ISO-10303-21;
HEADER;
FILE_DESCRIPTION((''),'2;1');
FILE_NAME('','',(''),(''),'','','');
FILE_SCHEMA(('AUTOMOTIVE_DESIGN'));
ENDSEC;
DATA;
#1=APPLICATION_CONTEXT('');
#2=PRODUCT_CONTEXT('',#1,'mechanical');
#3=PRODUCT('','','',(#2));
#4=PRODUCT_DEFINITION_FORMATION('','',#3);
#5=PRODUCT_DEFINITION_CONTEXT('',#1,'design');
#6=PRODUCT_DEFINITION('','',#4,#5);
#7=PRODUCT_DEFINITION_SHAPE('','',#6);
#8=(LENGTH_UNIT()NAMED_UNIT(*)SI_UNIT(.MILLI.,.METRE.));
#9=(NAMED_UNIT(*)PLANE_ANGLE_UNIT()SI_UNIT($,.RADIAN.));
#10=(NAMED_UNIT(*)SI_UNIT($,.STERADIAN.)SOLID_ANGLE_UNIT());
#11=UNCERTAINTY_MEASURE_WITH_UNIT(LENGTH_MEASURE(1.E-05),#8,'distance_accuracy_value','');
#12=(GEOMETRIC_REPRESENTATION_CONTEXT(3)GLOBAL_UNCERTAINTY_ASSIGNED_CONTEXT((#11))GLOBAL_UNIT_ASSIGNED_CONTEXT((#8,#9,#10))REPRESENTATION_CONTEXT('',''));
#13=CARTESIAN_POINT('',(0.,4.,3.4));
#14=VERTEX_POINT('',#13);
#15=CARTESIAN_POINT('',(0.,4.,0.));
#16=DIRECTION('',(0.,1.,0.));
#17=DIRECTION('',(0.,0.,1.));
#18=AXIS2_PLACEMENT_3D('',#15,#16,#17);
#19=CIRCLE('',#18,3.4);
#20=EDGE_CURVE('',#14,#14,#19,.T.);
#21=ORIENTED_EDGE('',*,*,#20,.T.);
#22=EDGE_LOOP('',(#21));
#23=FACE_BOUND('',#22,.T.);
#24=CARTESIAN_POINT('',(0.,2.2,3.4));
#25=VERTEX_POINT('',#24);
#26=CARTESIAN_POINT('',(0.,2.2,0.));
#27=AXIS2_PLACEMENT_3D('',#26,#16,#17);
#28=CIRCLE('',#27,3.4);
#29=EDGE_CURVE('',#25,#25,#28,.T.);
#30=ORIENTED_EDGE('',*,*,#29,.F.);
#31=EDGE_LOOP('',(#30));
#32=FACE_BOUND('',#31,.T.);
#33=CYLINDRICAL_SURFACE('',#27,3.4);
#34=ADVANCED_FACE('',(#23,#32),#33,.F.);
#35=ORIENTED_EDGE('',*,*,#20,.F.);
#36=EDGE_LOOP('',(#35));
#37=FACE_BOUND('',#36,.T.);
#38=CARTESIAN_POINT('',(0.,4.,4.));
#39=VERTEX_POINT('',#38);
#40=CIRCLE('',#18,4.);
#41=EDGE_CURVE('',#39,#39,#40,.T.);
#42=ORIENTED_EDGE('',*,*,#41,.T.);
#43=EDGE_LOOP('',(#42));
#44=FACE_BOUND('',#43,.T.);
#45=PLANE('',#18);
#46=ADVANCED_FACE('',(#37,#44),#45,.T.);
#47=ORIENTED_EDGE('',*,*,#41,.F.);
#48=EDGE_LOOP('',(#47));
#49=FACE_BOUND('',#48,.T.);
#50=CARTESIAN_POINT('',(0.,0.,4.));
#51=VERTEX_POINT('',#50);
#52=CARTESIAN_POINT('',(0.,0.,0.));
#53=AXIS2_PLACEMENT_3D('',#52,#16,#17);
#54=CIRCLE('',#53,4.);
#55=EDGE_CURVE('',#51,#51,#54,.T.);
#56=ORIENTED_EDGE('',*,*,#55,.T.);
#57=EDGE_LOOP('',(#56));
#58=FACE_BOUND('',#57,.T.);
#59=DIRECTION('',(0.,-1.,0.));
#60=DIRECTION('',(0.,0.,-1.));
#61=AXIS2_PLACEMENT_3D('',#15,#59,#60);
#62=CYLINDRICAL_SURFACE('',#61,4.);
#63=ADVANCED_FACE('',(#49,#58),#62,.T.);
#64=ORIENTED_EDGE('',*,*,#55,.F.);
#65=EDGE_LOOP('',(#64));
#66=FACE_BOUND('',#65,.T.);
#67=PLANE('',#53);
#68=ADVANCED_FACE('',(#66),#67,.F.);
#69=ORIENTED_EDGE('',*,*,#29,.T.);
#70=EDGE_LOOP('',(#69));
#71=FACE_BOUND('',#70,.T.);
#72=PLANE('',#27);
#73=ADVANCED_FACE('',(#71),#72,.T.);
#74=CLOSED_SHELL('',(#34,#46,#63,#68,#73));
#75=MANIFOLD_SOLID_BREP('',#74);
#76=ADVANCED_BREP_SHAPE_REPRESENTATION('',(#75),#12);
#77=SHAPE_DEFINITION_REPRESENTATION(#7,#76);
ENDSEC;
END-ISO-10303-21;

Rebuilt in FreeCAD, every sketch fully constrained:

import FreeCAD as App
import Part
import Sketcher

V = App.Vector
Q = App.Units.Quantity

doc = App.newDocument("Part")
body = doc.addObject("PartDesign::Body", "Body")

# Sketch on XZ plane
sketch1 = doc.addObject("Sketcher::SketchObject", "Sketch")
body.addObject(sketch1)
sketch1.AttachmentSupport = (doc.XZ_Plane, [""])
sketch1.MapMode = "FlatFace"
sketch1.addGeometry(Part.Circle(V(0, 0, 0), V(0, 0, 1), 4), False)
sketch1.addConstraint([
    Sketcher.Constraint("Coincident", 0, 3, -1, 1),
    Sketcher.Constraint("Diameter", 0, Q("8 mm")),
])
pad1 = doc.addObject("PartDesign::Pad", "Pad")
body.addObject(pad1)
pad1.Profile = sketch1
pad1.Length = 4
pad1.Reversed = True

# Sketch on XZ plane
sketch2 = doc.addObject("Sketcher::SketchObject", "Sketch001")
body.addObject(sketch2)
sketch2.AttachmentSupport = (doc.XZ_Plane, [""])
sketch2.MapMode = "FlatFace"
sketch2.AttachmentOffset = App.Placement(V(0, 0, -4), App.Rotation())
sketch2.addGeometry(Part.Circle(V(0, 0, 0), V(0, 0, 1), 3.4), False)
sketch2.addConstraint([
    Sketcher.Constraint("Coincident", 0, 3, -1, 1),
    Sketcher.Constraint("Diameter", 0, Q("6.8 mm")),
])
pocket1 = doc.addObject("PartDesign::Pocket", "Pocket")
body.addObject(pocket1)
pocket1.Profile = sketch2
pocket1.Length = 1.8
pocket1.Reversed = True

doc.recompute()
